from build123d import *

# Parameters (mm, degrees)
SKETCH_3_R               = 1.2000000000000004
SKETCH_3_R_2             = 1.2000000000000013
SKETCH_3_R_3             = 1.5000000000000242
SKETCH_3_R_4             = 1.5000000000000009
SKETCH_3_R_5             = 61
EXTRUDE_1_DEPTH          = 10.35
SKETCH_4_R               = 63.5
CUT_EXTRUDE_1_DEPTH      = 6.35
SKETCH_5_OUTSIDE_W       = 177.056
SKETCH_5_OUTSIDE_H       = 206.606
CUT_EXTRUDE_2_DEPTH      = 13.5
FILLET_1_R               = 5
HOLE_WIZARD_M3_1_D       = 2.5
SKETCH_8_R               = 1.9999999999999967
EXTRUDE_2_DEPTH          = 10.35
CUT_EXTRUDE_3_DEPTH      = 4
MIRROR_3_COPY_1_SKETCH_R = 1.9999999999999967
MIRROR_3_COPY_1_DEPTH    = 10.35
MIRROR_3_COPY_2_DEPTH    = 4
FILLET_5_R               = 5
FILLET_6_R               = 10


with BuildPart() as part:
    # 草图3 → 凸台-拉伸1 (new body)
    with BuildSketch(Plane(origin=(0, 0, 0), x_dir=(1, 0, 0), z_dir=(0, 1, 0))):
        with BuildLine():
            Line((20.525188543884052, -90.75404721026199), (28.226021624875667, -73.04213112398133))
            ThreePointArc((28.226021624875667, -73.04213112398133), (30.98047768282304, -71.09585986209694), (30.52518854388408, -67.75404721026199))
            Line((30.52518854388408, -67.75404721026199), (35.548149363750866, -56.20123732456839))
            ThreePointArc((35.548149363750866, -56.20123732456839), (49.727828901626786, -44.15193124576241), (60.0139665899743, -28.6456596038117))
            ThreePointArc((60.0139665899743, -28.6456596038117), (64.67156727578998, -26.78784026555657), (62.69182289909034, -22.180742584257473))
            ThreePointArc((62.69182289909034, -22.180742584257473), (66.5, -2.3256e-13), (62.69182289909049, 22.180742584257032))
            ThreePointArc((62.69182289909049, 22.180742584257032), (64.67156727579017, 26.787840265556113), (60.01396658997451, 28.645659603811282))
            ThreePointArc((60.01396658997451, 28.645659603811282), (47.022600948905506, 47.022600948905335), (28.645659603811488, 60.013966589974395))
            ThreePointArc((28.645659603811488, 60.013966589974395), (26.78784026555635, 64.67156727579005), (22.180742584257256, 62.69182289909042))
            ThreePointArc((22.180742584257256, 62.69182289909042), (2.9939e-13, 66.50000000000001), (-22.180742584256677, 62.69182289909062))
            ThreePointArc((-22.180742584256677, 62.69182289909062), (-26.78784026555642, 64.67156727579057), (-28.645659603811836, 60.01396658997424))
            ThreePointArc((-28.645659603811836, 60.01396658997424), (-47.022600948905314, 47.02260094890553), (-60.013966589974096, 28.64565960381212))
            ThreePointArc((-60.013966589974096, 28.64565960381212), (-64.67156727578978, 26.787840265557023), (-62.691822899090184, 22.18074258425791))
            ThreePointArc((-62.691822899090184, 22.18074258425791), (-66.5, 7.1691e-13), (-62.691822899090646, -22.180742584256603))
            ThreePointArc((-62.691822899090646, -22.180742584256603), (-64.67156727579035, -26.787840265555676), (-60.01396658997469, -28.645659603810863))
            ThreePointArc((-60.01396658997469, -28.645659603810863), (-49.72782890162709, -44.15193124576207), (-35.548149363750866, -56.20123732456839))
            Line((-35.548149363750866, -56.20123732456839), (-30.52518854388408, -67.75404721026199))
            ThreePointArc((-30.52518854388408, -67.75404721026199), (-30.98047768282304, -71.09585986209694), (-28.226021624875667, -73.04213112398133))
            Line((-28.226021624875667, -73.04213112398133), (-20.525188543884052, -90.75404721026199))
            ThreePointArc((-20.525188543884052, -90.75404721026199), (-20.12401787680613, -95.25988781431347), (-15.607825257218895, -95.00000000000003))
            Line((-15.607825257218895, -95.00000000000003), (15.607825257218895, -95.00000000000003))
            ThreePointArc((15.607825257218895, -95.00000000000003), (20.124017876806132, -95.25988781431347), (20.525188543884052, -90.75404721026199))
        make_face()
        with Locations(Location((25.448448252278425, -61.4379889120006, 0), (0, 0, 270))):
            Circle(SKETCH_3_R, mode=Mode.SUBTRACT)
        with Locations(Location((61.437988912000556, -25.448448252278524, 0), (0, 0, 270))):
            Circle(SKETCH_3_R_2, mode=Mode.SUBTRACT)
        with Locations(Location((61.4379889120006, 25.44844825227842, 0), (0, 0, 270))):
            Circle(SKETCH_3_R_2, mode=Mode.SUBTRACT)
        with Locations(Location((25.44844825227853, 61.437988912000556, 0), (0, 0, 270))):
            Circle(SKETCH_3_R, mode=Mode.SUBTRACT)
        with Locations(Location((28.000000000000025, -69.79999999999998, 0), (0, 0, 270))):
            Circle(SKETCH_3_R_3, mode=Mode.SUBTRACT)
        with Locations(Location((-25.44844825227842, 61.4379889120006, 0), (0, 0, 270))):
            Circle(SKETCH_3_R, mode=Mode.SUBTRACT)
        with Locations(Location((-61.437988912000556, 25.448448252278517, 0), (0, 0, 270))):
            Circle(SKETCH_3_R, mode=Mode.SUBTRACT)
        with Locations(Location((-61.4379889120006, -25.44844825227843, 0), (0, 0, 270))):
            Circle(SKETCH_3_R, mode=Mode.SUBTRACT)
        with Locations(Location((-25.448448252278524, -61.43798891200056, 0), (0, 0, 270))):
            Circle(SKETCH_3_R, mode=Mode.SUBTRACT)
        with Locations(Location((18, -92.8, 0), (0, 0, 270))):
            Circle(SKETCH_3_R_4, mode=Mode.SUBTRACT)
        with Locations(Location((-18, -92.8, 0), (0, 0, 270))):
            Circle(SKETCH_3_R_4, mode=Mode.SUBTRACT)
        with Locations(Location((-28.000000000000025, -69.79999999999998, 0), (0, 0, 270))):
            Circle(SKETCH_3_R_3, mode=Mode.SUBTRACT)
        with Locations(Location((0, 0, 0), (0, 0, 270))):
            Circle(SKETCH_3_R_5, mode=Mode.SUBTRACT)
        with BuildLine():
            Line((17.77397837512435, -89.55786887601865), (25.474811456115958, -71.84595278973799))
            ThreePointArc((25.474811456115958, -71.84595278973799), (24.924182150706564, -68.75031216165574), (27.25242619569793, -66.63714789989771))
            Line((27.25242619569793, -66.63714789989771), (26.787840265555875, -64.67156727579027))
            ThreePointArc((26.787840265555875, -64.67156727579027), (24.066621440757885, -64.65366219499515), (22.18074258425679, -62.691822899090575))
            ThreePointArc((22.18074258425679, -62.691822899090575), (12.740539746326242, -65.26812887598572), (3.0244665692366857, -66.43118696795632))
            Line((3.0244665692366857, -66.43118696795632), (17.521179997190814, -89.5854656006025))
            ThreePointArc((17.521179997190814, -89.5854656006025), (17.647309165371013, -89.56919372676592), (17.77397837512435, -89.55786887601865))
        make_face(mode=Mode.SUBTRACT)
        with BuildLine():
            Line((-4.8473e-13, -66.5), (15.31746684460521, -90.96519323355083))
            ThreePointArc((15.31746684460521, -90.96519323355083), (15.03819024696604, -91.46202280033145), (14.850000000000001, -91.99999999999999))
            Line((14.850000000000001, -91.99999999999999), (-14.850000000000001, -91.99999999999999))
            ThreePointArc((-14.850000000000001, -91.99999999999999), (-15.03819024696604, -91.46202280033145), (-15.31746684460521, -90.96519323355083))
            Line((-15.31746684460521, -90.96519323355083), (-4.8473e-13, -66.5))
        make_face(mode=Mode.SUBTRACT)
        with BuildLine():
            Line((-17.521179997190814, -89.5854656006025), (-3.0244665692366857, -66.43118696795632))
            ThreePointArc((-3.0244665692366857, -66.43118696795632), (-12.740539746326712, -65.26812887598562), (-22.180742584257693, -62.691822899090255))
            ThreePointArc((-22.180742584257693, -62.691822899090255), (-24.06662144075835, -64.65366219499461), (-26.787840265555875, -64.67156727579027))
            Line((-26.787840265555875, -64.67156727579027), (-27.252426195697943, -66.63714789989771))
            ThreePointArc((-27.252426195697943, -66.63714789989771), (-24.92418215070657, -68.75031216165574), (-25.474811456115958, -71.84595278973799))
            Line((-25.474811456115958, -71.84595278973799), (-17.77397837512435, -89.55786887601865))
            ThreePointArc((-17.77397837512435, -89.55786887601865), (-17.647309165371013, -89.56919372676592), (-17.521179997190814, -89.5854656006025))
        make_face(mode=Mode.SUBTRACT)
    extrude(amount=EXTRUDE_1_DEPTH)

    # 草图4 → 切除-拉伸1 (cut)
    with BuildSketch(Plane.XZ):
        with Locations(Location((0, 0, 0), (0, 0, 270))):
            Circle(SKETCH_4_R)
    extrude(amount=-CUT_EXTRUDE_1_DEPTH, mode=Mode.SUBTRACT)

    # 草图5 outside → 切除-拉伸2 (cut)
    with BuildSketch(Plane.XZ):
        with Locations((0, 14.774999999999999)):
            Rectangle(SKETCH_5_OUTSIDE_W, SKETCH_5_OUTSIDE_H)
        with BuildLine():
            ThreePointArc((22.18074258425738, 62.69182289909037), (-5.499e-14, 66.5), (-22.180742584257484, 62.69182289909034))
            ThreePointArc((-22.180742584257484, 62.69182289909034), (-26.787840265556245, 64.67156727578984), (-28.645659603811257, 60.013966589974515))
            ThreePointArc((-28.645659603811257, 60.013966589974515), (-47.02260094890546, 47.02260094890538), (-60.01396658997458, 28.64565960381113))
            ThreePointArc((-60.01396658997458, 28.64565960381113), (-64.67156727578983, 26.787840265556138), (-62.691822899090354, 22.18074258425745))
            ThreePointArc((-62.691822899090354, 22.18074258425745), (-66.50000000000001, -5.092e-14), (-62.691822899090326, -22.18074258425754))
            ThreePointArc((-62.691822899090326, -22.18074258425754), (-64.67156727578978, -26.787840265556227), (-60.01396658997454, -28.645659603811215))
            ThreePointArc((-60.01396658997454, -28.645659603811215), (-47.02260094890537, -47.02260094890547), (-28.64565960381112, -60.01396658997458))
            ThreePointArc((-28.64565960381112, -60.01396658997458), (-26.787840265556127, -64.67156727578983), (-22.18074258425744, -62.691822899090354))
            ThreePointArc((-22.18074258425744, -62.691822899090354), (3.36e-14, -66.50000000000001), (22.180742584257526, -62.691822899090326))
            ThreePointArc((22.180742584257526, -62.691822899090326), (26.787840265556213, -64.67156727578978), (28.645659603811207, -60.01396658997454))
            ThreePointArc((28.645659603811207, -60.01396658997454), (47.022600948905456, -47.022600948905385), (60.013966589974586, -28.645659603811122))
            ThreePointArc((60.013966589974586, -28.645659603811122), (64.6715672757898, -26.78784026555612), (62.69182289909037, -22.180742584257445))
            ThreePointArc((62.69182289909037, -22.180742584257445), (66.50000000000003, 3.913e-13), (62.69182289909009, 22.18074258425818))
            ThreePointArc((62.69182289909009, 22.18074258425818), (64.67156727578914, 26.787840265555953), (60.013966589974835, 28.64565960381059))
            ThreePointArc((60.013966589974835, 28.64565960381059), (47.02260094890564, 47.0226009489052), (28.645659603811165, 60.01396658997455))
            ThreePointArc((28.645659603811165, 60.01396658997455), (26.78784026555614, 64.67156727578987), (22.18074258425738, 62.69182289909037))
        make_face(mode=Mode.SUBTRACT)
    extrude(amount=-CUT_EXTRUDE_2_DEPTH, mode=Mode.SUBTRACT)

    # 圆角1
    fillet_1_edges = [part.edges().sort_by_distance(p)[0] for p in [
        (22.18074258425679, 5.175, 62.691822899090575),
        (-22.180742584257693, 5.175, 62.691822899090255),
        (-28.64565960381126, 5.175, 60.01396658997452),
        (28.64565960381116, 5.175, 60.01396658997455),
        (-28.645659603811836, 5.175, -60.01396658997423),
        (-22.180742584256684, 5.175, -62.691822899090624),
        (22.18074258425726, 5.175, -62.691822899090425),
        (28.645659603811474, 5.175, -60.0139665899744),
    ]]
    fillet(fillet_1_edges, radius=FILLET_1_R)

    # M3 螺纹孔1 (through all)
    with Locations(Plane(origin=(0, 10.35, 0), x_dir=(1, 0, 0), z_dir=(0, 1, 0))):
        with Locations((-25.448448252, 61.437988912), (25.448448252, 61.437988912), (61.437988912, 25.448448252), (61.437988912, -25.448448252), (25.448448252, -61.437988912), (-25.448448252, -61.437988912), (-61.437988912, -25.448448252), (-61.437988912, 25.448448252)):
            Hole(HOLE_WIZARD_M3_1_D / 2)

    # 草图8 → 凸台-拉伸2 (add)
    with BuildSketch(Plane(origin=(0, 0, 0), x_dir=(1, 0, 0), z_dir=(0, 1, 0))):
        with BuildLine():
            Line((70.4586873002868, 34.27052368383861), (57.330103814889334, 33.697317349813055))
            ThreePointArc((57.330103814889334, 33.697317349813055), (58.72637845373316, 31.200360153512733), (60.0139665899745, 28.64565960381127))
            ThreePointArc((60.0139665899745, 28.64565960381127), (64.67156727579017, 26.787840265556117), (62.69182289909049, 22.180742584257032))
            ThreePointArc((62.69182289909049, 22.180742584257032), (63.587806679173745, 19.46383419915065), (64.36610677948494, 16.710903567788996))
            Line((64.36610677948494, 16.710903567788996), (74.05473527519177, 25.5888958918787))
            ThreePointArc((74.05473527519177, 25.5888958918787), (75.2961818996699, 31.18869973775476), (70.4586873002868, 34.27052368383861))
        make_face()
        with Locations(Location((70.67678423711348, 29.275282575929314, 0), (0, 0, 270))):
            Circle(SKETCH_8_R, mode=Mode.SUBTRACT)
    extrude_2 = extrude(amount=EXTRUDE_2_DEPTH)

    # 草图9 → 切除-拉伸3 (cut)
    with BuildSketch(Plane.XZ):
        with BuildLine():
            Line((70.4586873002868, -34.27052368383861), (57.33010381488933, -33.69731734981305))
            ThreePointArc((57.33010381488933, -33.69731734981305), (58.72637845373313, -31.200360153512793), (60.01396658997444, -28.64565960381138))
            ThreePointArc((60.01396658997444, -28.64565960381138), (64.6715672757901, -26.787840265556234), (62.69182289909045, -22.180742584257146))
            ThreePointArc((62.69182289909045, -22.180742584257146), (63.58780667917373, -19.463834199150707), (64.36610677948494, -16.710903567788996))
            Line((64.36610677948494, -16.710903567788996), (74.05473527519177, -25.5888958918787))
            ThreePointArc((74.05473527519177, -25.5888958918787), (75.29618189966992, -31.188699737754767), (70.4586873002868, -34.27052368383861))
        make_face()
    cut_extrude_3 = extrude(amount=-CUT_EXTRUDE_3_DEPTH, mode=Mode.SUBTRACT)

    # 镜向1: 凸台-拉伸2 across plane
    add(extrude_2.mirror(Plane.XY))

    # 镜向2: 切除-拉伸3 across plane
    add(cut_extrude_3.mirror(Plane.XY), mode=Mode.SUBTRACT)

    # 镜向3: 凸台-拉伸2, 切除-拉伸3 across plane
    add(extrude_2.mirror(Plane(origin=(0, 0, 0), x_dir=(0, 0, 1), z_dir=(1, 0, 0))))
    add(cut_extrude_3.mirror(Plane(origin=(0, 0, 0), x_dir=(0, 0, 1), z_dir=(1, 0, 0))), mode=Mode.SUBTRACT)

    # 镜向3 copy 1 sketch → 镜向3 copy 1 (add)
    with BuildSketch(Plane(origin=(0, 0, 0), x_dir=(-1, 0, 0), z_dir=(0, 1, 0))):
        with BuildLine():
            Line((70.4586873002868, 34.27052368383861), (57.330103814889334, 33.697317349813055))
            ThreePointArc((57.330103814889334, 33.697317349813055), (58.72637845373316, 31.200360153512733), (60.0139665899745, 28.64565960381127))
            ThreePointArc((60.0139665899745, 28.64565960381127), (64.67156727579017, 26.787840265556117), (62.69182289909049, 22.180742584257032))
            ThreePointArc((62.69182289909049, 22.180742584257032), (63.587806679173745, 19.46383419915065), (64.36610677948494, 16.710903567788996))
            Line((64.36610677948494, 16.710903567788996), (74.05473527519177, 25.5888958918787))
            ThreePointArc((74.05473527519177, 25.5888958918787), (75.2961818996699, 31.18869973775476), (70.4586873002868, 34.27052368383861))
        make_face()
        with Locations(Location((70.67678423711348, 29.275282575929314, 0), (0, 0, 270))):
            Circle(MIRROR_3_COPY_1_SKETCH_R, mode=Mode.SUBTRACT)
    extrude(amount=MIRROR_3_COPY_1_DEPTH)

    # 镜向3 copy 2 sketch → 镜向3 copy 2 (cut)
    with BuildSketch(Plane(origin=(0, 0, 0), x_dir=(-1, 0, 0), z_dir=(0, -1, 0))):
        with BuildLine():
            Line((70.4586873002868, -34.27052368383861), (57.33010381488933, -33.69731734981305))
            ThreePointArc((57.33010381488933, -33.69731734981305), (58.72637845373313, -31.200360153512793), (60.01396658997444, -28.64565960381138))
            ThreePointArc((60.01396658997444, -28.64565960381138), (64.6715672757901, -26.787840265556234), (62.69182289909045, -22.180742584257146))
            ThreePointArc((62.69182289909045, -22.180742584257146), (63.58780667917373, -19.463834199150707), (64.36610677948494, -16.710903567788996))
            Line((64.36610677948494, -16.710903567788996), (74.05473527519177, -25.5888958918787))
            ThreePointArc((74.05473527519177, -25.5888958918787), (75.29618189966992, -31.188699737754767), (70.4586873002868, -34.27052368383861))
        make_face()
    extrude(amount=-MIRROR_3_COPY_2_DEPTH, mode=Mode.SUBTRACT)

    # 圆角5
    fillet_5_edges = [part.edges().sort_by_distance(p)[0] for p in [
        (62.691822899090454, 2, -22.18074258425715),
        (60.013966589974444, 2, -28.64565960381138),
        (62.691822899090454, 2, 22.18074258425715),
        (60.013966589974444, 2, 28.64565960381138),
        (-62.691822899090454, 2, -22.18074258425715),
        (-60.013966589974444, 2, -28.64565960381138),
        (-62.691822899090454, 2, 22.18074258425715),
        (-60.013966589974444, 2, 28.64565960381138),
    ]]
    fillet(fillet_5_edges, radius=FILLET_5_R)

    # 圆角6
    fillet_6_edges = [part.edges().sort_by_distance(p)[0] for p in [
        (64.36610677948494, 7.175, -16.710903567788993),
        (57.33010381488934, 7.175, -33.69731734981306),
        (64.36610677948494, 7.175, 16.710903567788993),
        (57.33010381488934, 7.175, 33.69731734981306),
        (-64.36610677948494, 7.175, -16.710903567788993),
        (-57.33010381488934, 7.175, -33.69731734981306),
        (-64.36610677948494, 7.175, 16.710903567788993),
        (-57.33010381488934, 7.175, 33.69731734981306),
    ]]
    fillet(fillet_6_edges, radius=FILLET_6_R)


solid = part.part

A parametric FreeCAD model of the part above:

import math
import FreeCAD as App
import Part
import Sketcher
Q = App.Units.Quantity


def edges_at(feature, points):
    """Names of the edges that pass closest to the given points."""
    edges = feature.Shape.Edges
    near = lambda p: min(range(len(edges)), key=lambda i: edges[i].distToShape(Part.Vertex(*p))[0])
    return sorted({f"Edge{near(p) + 1}" for p in points})

doc = App.newDocument("Part")
body = doc.addObject("PartDesign::Body", "Body")

# Sketch on XZ plane
sketch1 = body.newObject("Sketcher::SketchObject", "Sketch")
sketch1.AttachmentSupport = (doc.getObject("XZ_Plane"), [""])
sketch1.MapMode = "FlatFace"
sketch1.addGeometry(Part.LineSegment(App.Vector(20.525189, 90.754047, 0), App.Vector(28.226022, 73.042131, 0)), False)
sketch1.addGeometry(Part.ArcOfCircle(Part.Circle(App.Vector(28, 69.8, 0), App.Vector(0, 0, 1), 3.25), math.radians(-39.015008), math.radians(86.012139)), False)
sketch1.addGeometry(Part.LineSegment(App.Vector(30.525189, 67.754047, 0), App.Vector(35.548149, 56.201237, 0)), False)
sketch1.addGeometry(Part.ArcOfCircle(Part.Circle(App.Vector(0, 0, 0), App.Vector(0, 0, 1), 66.5), math.radians(25.515916), math.radians(57.686016)), False)
sketch1.addGeometry(Part.ArcOfCircle(Part.Circle(App.Vector(61.437989, 25.448448, 0), App.Vector(0, 0, 1), 3.5), math.radians(-69.007958), math.radians(114.007958)), False)
sketch1.addGeometry(Part.ArcOfCircle(Part.Circle(App.Vector(0, 0, 0), App.Vector(0, 0, 1), 66.5), math.radians(-19.484084), math.radians(19.484084)), False)
sketch1.addGeometry(Part.ArcOfCircle(Part.Circle(App.Vector(61.437989, -25.448448, 0), App.Vector(0, 0, 1), 3.5), math.radians(-114.007958), math.radians(69.007958)), False)
sketch1.addGeometry(Part.ArcOfCircle(Part.Circle(App.Vector(0, 0, 0), App.Vector(0, 0, 1), 66.5), math.radians(-64.484084), math.radians(-25.515916)), False)
sketch1.addGeometry(Part.ArcOfCircle(Part.Circle(App.Vector(25.448448, -61.437989, 0), App.Vector(0, 0, 1), 3.5), math.radians(-159.007958), math.radians(24.007958)), False)
sketch1.addGeometry(Part.ArcOfCircle(Part.Circle(App.Vector(0, 0, 0), App.Vector(0, 0, 1), 66.5), math.radians(-109.484084), math.radians(-70.515916)), False)
sketch1.addGeometry(Part.ArcOfCircle(Part.Circle(App.Vector(-25.448448, -61.437989, 0), App.Vector(0, 0, 1), 3.5), math.radians(155.992042), math.radians(339.007958)), False)
sketch1.addGeometry(Part.ArcOfCircle(Part.Circle(App.Vector(0, 0, 0), App.Vector(0, 0, 1), 66.5), math.radians(-154.484084), math.radians(-115.515916)), False)
sketch1.addGeometry(Part.ArcOfCircle(Part.Circle(App.Vector(-61.437989, -25.448448, 0), App.Vector(0, 0, 1), 3.5), math.radians(110.992042), math.radians(294.007958)), False)
sketch1.addGeometry(Part.ArcOfCircle(Part.Circle(App.Vector(0, 0, 0), App.Vector(0, 0, 1), 66.5), math.radians(160.515916), math.radians(199.484084)), False)
sketch1.addGeometry(Part.ArcOfCircle(Part.Circle(App.Vector(-61.437989, 25.448448, 0), App.Vector(0, 0, 1), 3.5), math.radians(65.992042), math.radians(249.007958)), False)
sketch1.addGeometry(Part.ArcOfCircle(Part.Circle(App.Vector(0, 0, 0), App.Vector(0, 0, 1), 66.5), math.radians(122.313984), math.radians(154.484084)), False)
sketch1.addGeometry(Part.LineSegment(App.Vector(-35.548149, 56.201237, 0), App.Vector(-30.525189, 67.754047, 0)), False)
sketch1.addGeometry(Part.ArcOfCircle(Part.Circle(App.Vector(-28, 69.8, 0), App.Vector(0, 0, 1), 3.25), math.radians(93.987861), math.radians(219.015008)), False)
sketch1.addGeometry(Part.LineSegment(App.Vector(-28.226022, 73.042131, 0), App.Vector(-20.525189, 90.754047, 0)), False)
sketch1.addGeometry(Part.ArcOfCircle(Part.Circle(App.Vector(-18, 92.8, 0), App.Vector(0, 0, 1), 3.25), math.radians(42.603667), math.radians(219.015008)), False)
sketch1.addGeometry(Part.LineSegment(App.Vector(-15.607825, 95, 0), App.Vector(15.607825, 95, 0)), False)
sketch1.addGeometry(Part.ArcOfCircle(Part.Circle(App.Vector(18, 92.8, 0), App.Vector(0, 0, 1), 3.25), math.radians(-39.015008), math.radians(137.396333)), False)
sketch1.addGeometry(Part.Circle(App.Vector(-18, 92.8, 0), App.Vector(0, 0, 1), 1.5), False)
sketch1.addGeometry(Part.LineSegment(App.Vector(-3.024467, 66.431187, 0), App.Vector(-17.52118, 89.585466, 0)), False)
sketch1.addGeometry(Part.ArcOfCircle(Part.Circle(App.Vector(-18, 92.8, 0), App.Vector(0, 0, 1), 3.25), math.radians(-86.012139), math.radians(-81.527817)), False)
sketch1.addGeometry(Part.LineSegment(App.Vector(-17.773978, 89.557869, 0), App.Vector(-25.474811, 71.845953, 0)), False)
sketch1.addGeometry(Part.ArcOfCircle(Part.Circle(App.Vector(-28, 69.8, 0), App.Vector(0, 0, 1), 3.25), math.radians(-76.701591), math.radians(39.015008)), False)
sketch1.addGeometry(Part.LineSegment(App.Vector(-27.252426, 66.637148, 0), App.Vector(-26.78784, 64.671567, 0)), False)
sketch1.addGeometry(Part.ArcOfCircle(Part.Circle(App.Vector(-25.448448, 61.437989, 0), App.Vector(0, 0, 1), 3.5), math.radians(20.992042), math.radians(112.5)), False)
sketch1.addGeometry(Part.ArcOfCircle(Part.Circle(App.Vector(0, 0, 0), App.Vector(0, 0, 1), 66.5), math.radians(92.606751), math.radians(109.484084)), False)
sketch1.addGeometry(Part.LineSegment(App.Vector(-15.317467, 90.965193, 0), App.Vector(0, 66.5, 0)), False)
sketch1.addGeometry(Part.LineSegment(App.Vector(0, 66.5, 0), App.Vector(15.317467, 90.965193, 0)), False)
sketch1.addGeometry(Part.ArcOfCircle(Part.Circle(App.Vector(18, 92.8, 0), App.Vector(0, 0, 1), 3.25), math.radians(-165.749967), math.radians(-145.62854)), False)
sketch1.addGeometry(Part.LineSegment(App.Vector(14.85, 92, 0), App.Vector(-14.85, 92, 0)), False)
sketch1.addGeometry(Part.ArcOfCircle(Part.Circle(App.Vector(-18, 92.8, 0), App.Vector(0, 0, 1), 3.25), math.radians(-34.37146), math.radians(-14.250033)), False)
sketch1.addGeometry(Part.Circle(App.Vector(-28, 69.8, 0), App.Vector(0, 0, 1), 1.5), False)
sketch1.addGeometry(Part.Circle(App.Vector(-25.448448, 61.437989, 0), App.Vector(0, 0, 1), 1.2), False)
sketch1.addGeometry(Part.Circle(App.Vector(-61.437989, 25.448448, 0), App.Vector(0, 0, 1), 1.2), False)
sketch1.addGeometry(Part.LineSegment(App.Vector(25.474811, 71.845953, 0), App.Vector(17.773978, 89.557869, 0)), False)
sketch1.addGeometry(Part.ArcOfCircle(Part.Circle(App.Vector(18, 92.8, 0), App.Vector(0, 0, 1), 3.25), math.radians(-98.472183), math.radians(-93.987861)), False)
sketch1.addGeometry(Part.LineSegment(App.Vector(17.52118, 89.585466, 0), App.Vector(3.024467, 66.431187, 0)), False)
sketch1.addGeometry(Part.ArcOfCircle(Part.Circle(App.Vector(0, 0, 0), App.Vector(0, 0, 1), 66.5), math.radians(70.515916), math.radians(87.393249)), False)
sketch1.addGeometry(Part.ArcOfCircle(Part.Circle(App.Vector(25.448448, 61.437989, 0), App.Vector(0, 0, 1), 3.5), math.radians(67.5), math.radians(159.007958)), False)
sketch1.addGeometry(Part.LineSegment(App.Vector(26.78784, 64.671567, 0), App.Vector(27.252426, 66.637148, 0)), False)
sketch1.addGeometry(Part.ArcOfCircle(Part.Circle(App.Vector(28, 69.8, 0), App.Vector(0, 0, 1), 3.25), math.radians(140.984992), math.radians(256.701591)), False)
sketch1.addGeometry(Part.Circle(App.Vector(18, 92.8, 0), App.Vector(0, 0, 1), 1.5), False)
sketch1.addGeometry(Part.Circle(App.Vector(28, 69.8, 0), App.Vector(0, 0, 1), 1.5), False)
sketch1.addGeometry(Part.Circle(App.Vector(25.448448, 61.437989, 0), App.Vector(0, 0, 1), 1.2), False)
sketch1.addGeometry(Part.Circle(App.Vector(61.437989, 25.448448, 0), App.Vector(0, 0, 1), 1.2), False)
sketch1.addGeometry(Part.Circle(App.Vector(0, 0, 0), App.Vector(0, 0, 1), 61), False)
sketch1.addGeometry(Part.Circle(App.Vector(-61.437989, -25.448448, 0), App.Vector(0, 0, 1), 1.2), False)
sketch1.addGeometry(Part.Circle(App.Vector(-25.448448, -61.437989, 0), App.Vector(0, 0, 1), 1.2), False)
sketch1.addGeometry(Part.Circle(App.Vector(25.448448, -61.437989, 0), App.Vector(0, 0, 1), 1.2), False)
sketch1.addGeometry(Part.Circle(App.Vector(61.437989, -25.448448, 0), App.Vector(0, 0, 1), 1.2), False)
sketch1.addConstraint(Sketcher.Constraint("Coincident", 0, 2, 1, 2))
sketch1.addConstraint(Sketcher.Constraint("Coincident", 1, 1, 2, 1))
sketch1.addConstraint(Sketcher.Constraint("Coincident", 2, 2, 3, 2))
sketch1.addConstraint(Sketcher.Constraint("Coincident", 3, 1, 4, 2))
sketch1.addConstraint(Sketcher.Constraint("Coincident", 4, 1, 5, 2))
sketch1.addConstraint(Sketcher.Constraint("Coincident", 5, 1, 6, 2))
sketch1.addConstraint(Sketcher.Constraint("Coincident", 6, 1, 7, 2))
sketch1.addConstraint(Sketcher.Constraint("Coincident", 7, 1, 8, 2))
sketch1.addConstraint(Sketcher.Constraint("Coincident", 8, 1, 9, 2))
sketch1.addConstraint(Sketcher.Constraint("Coincident", 9, 1, 10, 2))
sketch1.addConstraint(Sketcher.Constraint("Coincident", 10, 1, 11, 2))
sketch1.addConstraint(Sketcher.Constraint("Coincident", 11, 1, 12, 2))
sketch1.addConstraint(Sketcher.Constraint("Coincident", 12, 1, 13, 2))
sketch1.addConstraint(Sketcher.Constraint("Coincident", 13, 1, 14, 2))
sketch1.addConstraint(Sketcher.Constraint("Coincident", 14, 1, 15, 2))
sketch1.addConstraint(Sketcher.Constraint("Coincident", 15, 1, 16, 1))
sketch1.addConstraint(Sketcher.Constraint("Coincident", 16, 2, 17, 2))
sketch1.addConstraint(Sketcher.Constraint("Coincident", 17, 1, 18, 1))
sketch1.addConstraint(Sketcher.Constraint("Coincident", 18, 2, 19, 2))
sketch1.addConstraint(Sketcher.Constraint("Coincident", 19, 1, 20, 1))
sketch1.addConstraint(Sketcher.Constraint("Coincident", 20, 2, 21, 2))
sketch1.addConstraint(Sketcher.Constraint("Coincident", 21, 1, 0, 1))
sketch1.addConstraint(Sketcher.Constraint("Coincident", 23, 2, 24, 2))
sketch1.addConstraint(Sketcher.Constraint("Coincident", 24, 1, 25, 1))
sketch1.addConstraint(Sketcher.Constraint("Coincident", 25, 2, 26, 2))
sketch1.addConstraint(Sketcher.Constraint("Coincident", 26, 1, 27, 1))
sketch1.addConstraint(Sketcher.Constraint("Coincident", 27, 2, 28, 2))
sketch1.addConstraint(Sketcher.Constraint("Coincident", 28, 1, 29, 2))
sketch1.addConstraint(Sketcher.Constraint("Coincident", 29, 1, 23, 1))
sketch1.addConstraint(Sketcher.Constraint("Coincident", 30, 2, 31, 1))
sketch1.addConstraint(Sketcher.Constraint("Coincident", 31, 2, 32, 2))
sketch1.addConstraint(Sketcher.Constraint("Coincident", 32, 1, 33, 1))
sketch1.addConstraint(Sketcher.Constraint("Coincident", 33, 2, 34, 2))
sketch1.addConstraint(Sketcher.Constraint("Coincident", 34, 1, 30, 1))
sketch1.addConstraint(Sketcher.Constraint("Coincident", 38, 2, 39, 2))
sketch1.addConstraint(Sketcher.Constraint("Coincident", 39, 1, 40, 1))
sketch1.addConstraint(Sketcher.Constraint("Coincident", 40, 2, 41, 2))
sketch1.addConstraint(Sketcher.Constraint("Coincident", 41, 1, 42, 2))
sketch1.addConstraint(Sketcher.Constraint("Coincident", 42, 1, 43, 1))
sketch1.addConstraint(Sketcher.Constraint("Coincident", 43, 2, 44, 2))
sketch1.addConstraint(Sketcher.Constraint("Coincident", 44, 1, 38, 1))
sketch1.addConstraint(Sketcher.Constraint("Horizontal", 20))
sketch1.addConstraint(Sketcher.Constraint("Horizontal", 33))
sketch1.addConstraint(Sketcher.Constraint("Coincident", 3, 3, -1, 1))
sketch1.addConstraint(Sketcher.Constraint("Coincident", 5, 3, -1, 1))
sketch1.addConstraint(Sketcher.Constraint("Coincident", 7, 3, -1, 1))
sketch1.addConstraint(Sketcher.Constraint("Coincident", 9, 3, -1, 1))
sketch1.addConstraint(Sketcher.Constraint("Coincident", 11, 3, -1, 1))
sketch1.addConstraint(Sketcher.Constraint("Coincident", 13, 3, -1, 1))
sketch1.addConstraint(Sketcher.Constraint("Coincident", 15, 3, -1, 1))
sketch1.addConstraint(Sketcher.Constraint("Coincident", 29, 3, -1, 1))
sketch1.addConstraint(Sketcher.Constraint("Coincident", 41, 3, -1, 1))
sketch1.addConstraint(Sketcher.Constraint("Coincident", 49, 3, -1, 1))
sketch1.addConstraint(Sketcher.Constraint("Coincident", 22, 3, 19, 3))
sketch1.addConstraint(Sketcher.Constraint("Coincident", 24, 3, 19, 3))
sketch1.addConstraint(Sketcher.Constraint("Coincident", 26, 3, 17, 3))
sketch1.addConstraint(Sketcher.Constraint("Coincident", 32, 3, 21, 3))
sketch1.addConstraint(Sketcher.Constraint("Coincident", 34, 3, 19, 3))
sketch1.addConstraint(Sketcher.Constraint("Coincident", 35, 3, 17, 3))
sketch1.addConstraint(Sketcher.Constraint("Coincident", 36, 3, 28, 3))
sketch1.addConstraint(Sketcher.Constraint("Coincident", 37, 3, 14, 3))
sketch1.addConstraint(Sketcher.Constraint("Coincident", 39, 3, 21, 3))
sketch1.addConstraint(Sketcher.Constraint("Coincident", 44, 3, 1, 3))
sketch1.addConstraint(Sketcher.Constraint("Coincident", 45, 3, 21, 3))
sketch1.addConstraint(Sketcher.Constraint("Coincident", 46, 3, 1, 3))
sketch1.addConstraint(Sketcher.Constraint("Coincident", 47, 3, 42, 3))
sketch1.addConstraint(Sketcher.Constraint("Coincident", 48, 3, 4, 3))
sketch1.addConstraint(Sketcher.Constraint("Coincident", 50, 3, 12, 3))
sketch1.addConstraint(Sketcher.Constraint("Coincident", 51, 3, 10, 3))
sketch1.addConstraint(Sketcher.Constraint("Coincident", 52, 3, 8, 3))
sketch1.addConstraint(Sketcher.Constraint("Coincident", 53, 3, 6, 3))
sketch1.addConstraint(Sketcher.Constraint("Equal", 3, 5))
sketch1.addConstraint(Sketcher.Constraint("Equal", 4, 6))
sketch1.addConstraint(Sketcher.Constraint("Equal", 5, 7))
sketch1.addConstraint(Sketcher.Constraint("Equal", 6, 8))
sketch1.addConstraint(Sketcher.Constraint("Equal", 7, 9))
sketch1.addConstraint(Sketcher.Constraint("Equal", 8, 10))
sketch1.addConstraint(Sketcher.Constraint("Equal", 9, 11))
sketch1.addConstraint(Sketcher.Constraint("Equal", 10, 12))
sketch1.addConstraint(Sketcher.Constraint("Equal", 11, 13))
sketch1.addConstraint(Sketcher.Constraint("Equal", 12, 14))
sketch1.addConstraint(Sketcher.Constraint("Equal", 13, 15))
sketch1.addConstraint(Sketcher.Constraint("Equal", 1, 17))
sketch1.addConstraint(Sketcher.Constraint("Equal", 17, 19))
sketch1.addConstraint(Sketcher.Constraint("Equal", 19, 21))
sketch1.addConstraint(Sketcher.Constraint("Equal", 21, 24))
sketch1.addConstraint(Sketcher.Constraint("Equal", 24, 26))
sketch1.addConstraint(Sketcher.Constraint("Equal", 14, 28))
sketch1.addConstraint(Sketcher.Constraint("Equal", 15, 29))
sketch1.addConstraint(Sketcher.Constraint("Equal", 26, 32))
sketch1.addConstraint(Sketcher.Constraint("Equal", 32, 34))
sketch1.addConstraint(Sketcher.Constraint("Equal", 22, 35))
sketch1.addConstraint(Sketcher.Constraint("Equal", 36, 37))
sketch1.addConstraint(Sketcher.Constraint("Equal", 34, 39))
sketch1.addConstraint(Sketcher.Constraint("Equal", 29, 41))
sketch1.addConstraint(Sketcher.Constraint("Equal", 28, 42))
sketch1.addConstraint(Sketcher.Constraint("Equal", 39, 44))
sketch1.addConstraint(Sketcher.Constraint("Equal", 35, 45))
sketch1.addConstraint(Sketcher.Constraint("Equal", 45, 46))
sketch1.addConstraint(Sketcher.Constraint("Equal", 37, 47))
sketch1.addConstraint(Sketcher.Constraint("Equal", 47, 48))
sketch1.addConstraint(Sketcher.Constraint("Equal", 48, 50))
sketch1.addConstraint(Sketcher.Constraint("Equal", 50, 51))
sketch1.addConstraint(Sketcher.Constraint("Equal", 51, 52))
sketch1.addConstraint(Sketcher.Constraint("Equal", 52, 53))
sketch1.addConstraint(Sketcher.Constraint("Symmetric", 4, 3, 12, 3, -1, 1))
sketch1.addConstraint(Sketcher.Constraint("Symmetric", 6, 3, 14, 3, -1, 1))
sketch1.addConstraint(Sketcher.Constraint("Symmetric", 8, 3, 28, 3, -1, 1))
sketch1.addConstraint(Sketcher.Constraint("Symmetric", 10, 3, 42, 3, -1, 1))
sketch1.addConstraint(Sketcher.Constraint("Symmetric", 8, 3, 10, 3, -2))
sketch1.addConstraint(Sketcher.Constraint("Symmetric", 6, 3, 12, 3, -2))
sketch1.addConstraint(Sketcher.Constraint("Symmetric", 1, 3, 17, 3, -2))
sketch1.addConstraint(Sketcher.Constraint("Symmetric", 19, 3, 21, 3, -2))
sketch1.addConstraint(Sketcher.Constraint("PointOnObject", 30, 2, -2))
sketch1.addConstraint(Sketcher.Constraint("Parallel", 0, 2))
sketch1.addConstraint(Sketcher.Constraint("Parallel", 16, 18))
sketch1.addConstraint(Sketcher.Constraint("Parallel", 18, 25))
sketch1.addConstraint(Sketcher.Constraint("Parallel", 23, 30))
sketch1.addConstraint(Sketcher.Constraint("Parallel", 2, 38))
sketch1.addConstraint(Sketcher.Constraint("Parallel", 31, 40))
sketch1.addConstraint(Sketcher.Constraint("Horizontal", 2, 2, 15, 1))
sketch1.addConstraint(Sketcher.Constraint("Horizontal", 1, 1, 16, 2))
sketch1.addConstraint(Sketcher.Constraint("Horizontal", 0, 2, 17, 1))
sketch1.addConstraint(Sketcher.Constraint("Horizontal", 31, 2, 34, 1))
sketch1.addConstraint(Sketcher.Constraint("Horizontal", 24, 1, 38, 2))
sketch1.addConstraint(Sketcher.Constraint("Horizontal", 23, 2, 39, 1))
sketch1.addConstraint(Sketcher.Constraint("Horizontal", 27, 2, 42, 1))
sketch1.addConstraint(Sketcher.Constraint("Horizontal", 26, 1, 43, 2))
sketch1.addConstraint(Sketcher.Constraint("Equal", 18, 25))
sketch1.addConstraint(Sketcher.Constraint("Diameter", 22, 3.0))
sketch1.addConstraint(Sketcher.Constraint("Diameter", 49, 122.0))
sketch1.addConstraint(Sketcher.Constraint("Diameter", 36, 2.4))
sketch1.addConstraint(Sketcher.Constraint("Radius", 3, 66.5))
sketch1.addConstraint(Sketcher.Constraint("Radius", 4, 3.5))
sketch1.addConstraint(Sketcher.Constraint("Radius", 1, 3.25))
sketch1.addConstraint(Sketcher.Constraint("DistanceX", 33, 2, 33, 1, 29.7))
sketch1.addConstraint(Sketcher.Constraint("DistanceX", -1, 1, 1, 3, 28.0))
sketch1.addConstraint(Sketcher.Constraint("DistanceX", 19, 3, -1, 1, 18.0))
sketch1.addConstraint(Sketcher.Constraint("DistanceY", -1, 1, 19, 1, 95.0))
sketch1.addConstraint(Sketcher.Constraint("DistanceY", -1, 1, 32, 1, 92.0))
sketch1.addConstraint(Sketcher.Constraint("DistanceY", -1, 1, 1, 3, 69.8))
sketch1.addConstraint(Sketcher.Constraint("DistanceY", -1, 1, 30, 2, 66.5))
sketch1.addConstraint(Sketcher.Constraint("Distance", 0, 19.313591))
sketch1.addConstraint(Sketcher.Constraint("Distance", 2, 12.597522))
sketch1.addConstraint(Sketcher.Constraint("Distance", 23, 27.31804))
sketch1.addConstraint(Sketcher.Constraint("Distance", 27, 2.019739))
sketch1.addConstraint(Sketcher.Constraint("DistanceX", -1, 1, 4, 3, 61.437989))
sketch1.addConstraint(Sketcher.Constraint("DistanceY", -1, 1, 4, 3, 25.448448))
sketch1.addConstraint(Sketcher.Constraint("DistanceX", -1, 1, 8, 3, 25.448448))
sketch1.addConstraint(Sketcher.Constraint("DistanceY", 8, 3, -1, 1, 61.437989))
sketch1.addConstraint(Sketcher.Constraint("DistanceX", -1, 1, 0, 2, 28.226022))
sketch1.addConstraint(Sketcher.Constraint("DistanceX", 23, 2, -1, 1, 17.52118))
sketch1.addConstraint(Sketcher.Constraint("DistanceX", 26, 1, -1, 1, 27.252426))
pad1 = body.newObject("PartDesign::Pad", "Pad")
pad1.Profile = sketch1
pad1.Length = 10.35
pad1.Reversed = True

# Sketch on XZ plane
sketch2 = body.newObject("Sketcher::SketchObject", "Sketch001")
sketch2.AttachmentSupport = (doc.getObject("XZ_Plane"), [""])
sketch2.MapMode = "FlatFace"
sketch2.addGeometry(Part.Circle(App.Vector(0, 0, 0), App.Vector(0, 0, 1), 63.5), False)
sketch2.addConstraint(Sketcher.Constraint("Coincident", 0, 3, -1, 1))
sketch2.addConstraint(Sketcher.Constraint("Diameter", 0, 127.0))
pocket1 = body.newObject("PartDesign::Pocket", "Pocket")
pocket1.Profile = sketch2
pocket1.Length = 6.35

# Sketch on XZ plane
sketch3 = body.newObject("Sketcher::SketchObject", "Sketch002")
sketch3.AttachmentSupport = (doc.getObject("XZ_Plane"), [""])
sketch3.MapMode = "FlatFace"
sketch3.addGeometry(Part.LineSegment(App.Vector(-88.528, 118.078, 0), App.Vector(-88.528, -88.528, 0)), False)
sketch3.addGeometry(Part.LineSegment(App.Vector(-88.528, -88.528, 0), App.Vector(88.528, -88.528, 0)), False)
sketch3.addGeometry(Part.LineSegment(App.Vector(88.528, -88.528, 0), App.Vector(88.528, 118.078, 0)), False)
sketch3.addGeometry(Part.LineSegment(App.Vector(88.528, 118.078, 0), App.Vector(-88.528, 118.078, 0)), False)
sketch3.addGeometry(Part.ArcOfCircle(Part.Circle(App.Vector(0, 0, 0), App.Vector(0, 0, 1), 66.5), math.radians(70.515916), math.radians(109.484084)), False)
sketch3.addGeometry(Part.ArcOfCircle(Part.Circle(App.Vector(25.448448, 61.437989, 0), App.Vector(0, 0, 1), 3.5), math.radians(-24.007958), math.radians(159.007958)), False)
sketch3.addGeometry(Part.ArcOfCircle(Part.Circle(App.Vector(0, 0, 0), App.Vector(0, 0, 1), 66.5), math.radians(25.515916), math.radians(64.484084)), False)
sketch3.addGeometry(Part.ArcOfCircle(Part.Circle(App.Vector(61.437989, 25.448448, 0), App.Vector(0, 0, 1), 3.5), math.radians(-69.007958), math.radians(114.007958)), False)
sketch3.addGeometry(Part.ArcOfCircle(Part.Circle(App.Vector(0, 0, 0), App.Vector(0, 0, 1), 66.5), math.radians(-19.484084), math.radians(19.484084)), False)
sketch3.addGeometry(Part.ArcOfCircle(Part.Circle(App.Vector(61.437989, -25.448448, 0), App.Vector(0, 0, 1), 3.5), math.radians(-114.007958), math.radians(69.007958)), False)
sketch3.addGeometry(Part.ArcOfCircle(Part.Circle(App.Vector(0, 0, 0), App.Vector(0, 0, 1), 66.5), math.radians(-64.484084), math.radians(-25.515916)), False)
sketch3.addGeometry(Part.ArcOfCircle(Part.Circle(App.Vector(25.448448, -61.437989, 0), App.Vector(0, 0, 1), 3.5), math.radians(-159.007958), math.radians(24.007958)), False)
sketch3.addGeometry(Part.ArcOfCircle(Part.Circle(App.Vector(0, 0, 0), App.Vector(0, 0, 1), 66.5), math.radians(-109.484084), math.radians(-70.515916)), False)
sketch3.addGeometry(Part.ArcOfCircle(Part.Circle(App.Vector(-25.448448, -61.437989, 0), App.Vector(0, 0, 1), 3.5), math.radians(155.992042), math.radians(339.007958)), False)
sketch3.addGeometry(Part.ArcOfCircle(Part.Circle(App.Vector(0, 0, 0), App.Vector(0, 0, 1), 66.5), math.radians(-154.484084), math.radians(-115.515916)), False)
sketch3.addGeometry(Part.ArcOfCircle(Part.Circle(App.Vector(-61.437989, -25.448448, 0), App.Vector(0, 0, 1), 3.5), math.radians(110.992042), math.radians(294.007958)), False)
sketch3.addGeometry(Part.ArcOfCircle(Part.Circle(App.Vector(0, 0, 0), App.Vector(0, 0, 1), 66.5), math.radians(160.515916), math.radians(199.484084)), False)
sketch3.addGeometry(Part.ArcOfCircle(Part.Circle(App.Vector(-61.437989, 25.448448, 0), App.Vector(0, 0, 1), 3.5), math.radians(65.992042), math.radians(249.007958)), False)
sketch3.addGeometry(Part.ArcOfCircle(Part.Circle(App.Vector(0, 0, 0), App.Vector(0, 0, 1), 66.5), math.radians(115.515916), math.radians(154.484084)), False)
sketch3.addGeometry(Part.ArcOfCircle(Part.Circle(App.Vector(-25.448448, 61.437989, 0), App.Vector(0, 0, 1), 3.5), math.radians(20.992042), math.radians(204.007958)), False)
sketch3.addConstraint(Sketcher.Constraint("Coincident", 0, 2, 1, 1))
sketch3.addConstraint(Sketcher.Constraint("Coincident", 1, 2, 2, 1))
sketch3.addConstraint(Sketcher.Constraint("Coincident", 2, 2, 3, 1))
sketch3.addConstraint(Sketcher.Constraint("Coincident", 3, 2, 0, 1))
sketch3.addConstraint(Sketcher.Constraint("Coincident", 4, 1, 5, 2))
sketch3.addConstraint(Sketcher.Constraint("Coincident", 5, 1, 6, 2))
sketch3.addConstraint(Sketcher.Constraint("Coincident", 6, 1, 7, 2))
sketch3.addConstraint(Sketcher.Constraint("Coincident", 7, 1, 8, 2))
sketch3.addConstraint(Sketcher.Constraint("Coincident", 8, 1, 9, 2))
sketch3.addConstraint(Sketcher.Constraint("Coincident", 9, 1, 10, 2))
sketch3.addConstraint(Sketcher.Constraint("Coincident", 10, 1, 11, 2))
sketch3.addConstraint(Sketcher.Constraint("Coincident", 11, 1, 12, 2))
sketch3.addConstraint(Sketcher.Constraint("Coincident", 12, 1, 13, 2))
sketch3.addConstraint(Sketcher.Constraint("Coincident", 13, 1, 14, 2))
sketch3.addConstraint(Sketcher.Constraint("Coincident", 14, 1, 15, 2))
sketch3.addConstraint(Sketcher.Constraint("Coincident", 15, 1, 16, 2))
sketch3.addConstraint(Sketcher.Constraint("Coincident", 16, 1, 17, 2))
sketch3.addConstraint(Sketcher.Constraint("Coincident", 17, 1, 18, 2))
sketch3.addConstraint(Sketcher.Constraint("Coincident", 18, 1, 19, 2))
sketch3.addConstraint(Sketcher.Constraint("Coincident", 19, 1, 4, 2))
sketch3.addConstraint(Sketcher.Constraint("Vertical", 0))
sketch3.addConstraint(Sketcher.Constraint("Horizontal", 1))
sketch3.addConstraint(Sketcher.Constraint("Vertical", 2))
sketch3.addConstraint(Sketcher.Constraint("Horizontal", 3))
sketch3.addConstraint(Sketcher.Constraint("Coincident", 4, 3, -1, 1))
sketch3.addConstraint(Sketcher.Constraint("Coincident", 6, 3, -1, 1))
sketch3.addConstraint(Sketcher.Constraint("Coincident", 8, 3, -1, 1))
sketch3.addConstraint(Sketcher.Constraint("Coincident", 10, 3, -1, 1))
sketch3.addConstraint(Sketcher.Constraint("Coincident", 12, 3, -1, 1))
sketch3.addConstraint(Sketcher.Constraint("Coincident", 14, 3, -1, 1))
sketch3.addConstraint(Sketcher.Constraint("Coincident", 16, 3, -1, 1))
sketch3.addConstraint(Sketcher.Constraint("Coincident", 18, 3, -1, 1))
sketch3.addConstraint(Sketcher.Constraint("Equal", 4, 6))
sketch3.addConstraint(Sketcher.Constraint("Equal", 5, 7))
sketch3.addConstraint(Sketcher.Constraint("Equal", 6, 8))
sketch3.addConstraint(Sketcher.Constraint("Equal", 7, 9))
sketch3.addConstraint(Sketcher.Constraint("Equal", 8, 10))
sketch3.addConstraint(Sketcher.Constraint("Equal", 9, 11))
sketch3.addConstraint(Sketcher.Constraint("Equal", 10, 12))
sketch3.addConstraint(Sketcher.Constraint("Equal", 11, 13))
sketch3.addConstraint(Sketcher.Constraint("Equal", 12, 14))
sketch3.addConstraint(Sketcher.Constraint("Equal", 13, 15))
sketch3.addConstraint(Sketcher.Constraint("Equal", 14, 16))
sketch3.addConstraint(Sketcher.Constraint("Equal", 15, 17))
sketch3.addConstraint(Sketcher.Constraint("Equal", 16, 18))
sketch3.addConstraint(Sketcher.Constraint("Equal", 17, 19))
sketch3.addConstraint(Sketcher.Constraint("Symmetric", 5, 3, 13, 3, -1, 1))
sketch3.addConstraint(Sketcher.Constraint("Symmetric", 7, 3, 15, 3, -1, 1))
sketch3.addConstraint(Sketcher.Constraint("Symmetric", 9, 3, 17, 3, -1, 1))
sketch3.addConstraint(Sketcher.Constraint("Symmetric", 11, 3, 19, 3, -1, 1))
sketch3.addConstraint(Sketcher.Constraint("Symmetric", 11, 3, 13, 3, -2))
sketch3.addConstraint(Sketcher.Constraint("Symmetric", 9, 3, 15, 3, -2))
sketch3.addConstraint(Sketcher.Constraint("Radius", 4, 66.5))
sketch3.addConstraint(Sketcher.Constraint("Radius", 5, 3.5))
sketch3.addConstraint(Sketcher.Constraint("DistanceX", 1, 1, 1, 2, 177.056))
sketch3.addConstraint(Sketcher.Constraint("DistanceY", 0, 2, 0, 1, 206.606))
sketch3.addConstraint(Sketcher.Constraint("DistanceX", 0, 2, -1, 1, 88.528))
sketch3.addConstraint(Sketcher.Constraint("DistanceY", 0, 2, -1, 1, 88.528))
sketch3.addConstraint(Sketcher.Constraint("DistanceX", -1, 1, 5, 3, 25.448448))
sketch3.addConstraint(Sketcher.Constraint("DistanceY", -1, 1, 5, 3, 61.437989))
sketch3.addConstraint(Sketcher.Constraint("DistanceX", -1, 1, 7, 3, 61.437989))
sketch3.addConstraint(Sketcher.Constraint("DistanceY", -1, 1, 7, 3, 25.448448))
pocket2 = body.newObject("PartDesign::Pocket", "Pocket001")
pocket2.Profile = sketch3
pocket2.Length = 13.5
doc.recompute()

fillet = body.newObject("PartDesign::Fillet", "Fillet")
fillet.Base = (pocket2, edges_at(pocket2, [
    (22.181, 5.175, 62.692),
    (-22.181, 5.175, 62.692),
    (-28.646, 5.175, 60.014),
    (28.646, 5.175, 60.014),
    (-28.646, 5.175, -60.014),
    (-22.181, 5.175, -62.692),
    (22.181, 5.175, -62.692),
    (28.646, 5.175, -60.014),
]))
fillet.Radius = 5

# Sketch on XZ plane
sketch4 = body.newObject("Sketcher::SketchObject", "Sketch003")
sketch4.AttachmentSupport = (doc.getObject("XZ_Plane"), [""])
sketch4.MapMode = "FlatFace"
sketch4.AttachmentOffset = App.Placement(App.Vector(0, 0, -10.35), App.Rotation())
sketch4.addGeometry(Part.Circle(App.Vector(-25.448448, -61.437989, 0), App.Vector(0, 0, 1), 1.25), False)
sketch4.addGeometry(Part.Circle(App.Vector(25.448448, -61.437989, 0), App.Vector(0, 0, 1), 1.25), False)
sketch4.addGeometry(Part.Circle(App.Vector(61.437989, -25.448448, 0), App.Vector(0, 0, 1), 1.25), False)
sketch4.addGeometry(Part.Circle(App.Vector(61.437989, 25.448448, 0), App.Vector(0, 0, 1), 1.25), False)
sketch4.addGeometry(Part.Circle(App.Vector(25.448448, 61.437989, 0), App.Vector(0, 0, 1), 1.25), False)
sketch4.addGeometry(Part.Circle(App.Vector(-25.448448, 61.437989, 0), App.Vector(0, 0, 1), 1.25), False)
sketch4.addGeometry(Part.Circle(App.Vector(-61.437989, 25.448448, 0), App.Vector(0, 0, 1), 1.25), False)
sketch4.addGeometry(Part.Circle(App.Vector(-61.437989, -25.448448, 0), App.Vector(0, 0, 1), 1.25), False)
sketch4.addConstraint(Sketcher.Constraint("Equal", 0, 1))
sketch4.addConstraint(Sketcher.Constraint("Equal", 1, 2))
sketch4.addConstraint(Sketcher.Constraint("Equal", 2, 3))
sketch4.addConstraint(Sketcher.Constraint("Equal", 3, 4))
sketch4.addConstraint(Sketcher.Constraint("Equal", 4, 5))
sketch4.addConstraint(Sketcher.Constraint("Equal", 5, 6))
sketch4.addConstraint(Sketcher.Constraint("Equal", 6, 7))
sketch4.addConstraint(Sketcher.Constraint("Symmetric", 0, 3, 4, 3, -1, 1))
sketch4.addConstraint(Sketcher.Constraint("Symmetric", 1, 3, 5, 3, -1, 1))
sketch4.addConstraint(Sketcher.Constraint("Symmetric", 2, 3, 6, 3, -1, 1))
sketch4.addConstraint(Sketcher.Constraint("Symmetric", 3, 3, 7, 3, -1, 1))
sketch4.addConstraint(Sketcher.Constraint("Symmetric", 0, 3, 1, 3, -2))
sketch4.addConstraint(Sketcher.Constraint("Symmetric", 3, 3, 6, 3, -2))
sketch4.addConstraint(Sketcher.Constraint("Diameter", 0, 2.5))
sketch4.addConstraint(Sketcher.Constraint("DistanceX", 0, 3, -1, 1, 25.448448))
sketch4.addConstraint(Sketcher.Constraint("DistanceY", 0, 3, -1, 1, 61.437989))
sketch4.addConstraint(Sketcher.Constraint("DistanceX", -1, 1, 2, 3, 61.437989))
sketch4.addConstraint(Sketcher.Constraint("DistanceY", 2, 3, -1, 1, 25.448448))
doc.recompute()
hole = body.newObject("PartDesign::Hole", "Hole")
hole.Profile = sketch4
hole.ThreadType = "None"
hole.Diameter = 2.5
hole.DepthType = "ThroughAll"
hole.Reversed = True

# Sketch on XZ plane
sketch5 = body.newObject("Sketcher::SketchObject", "Sketch004")
sketch5.AttachmentSupport = (doc.getObject("XZ_Plane"), [""])
sketch5.MapMode = "FlatFace"
sketch5.addGeometry(Part.LineSegment(App.Vector(70.458687, -34.270524, 0), App.Vector(57.330104, -33.697317, 0)), False)
sketch5.addGeometry(Part.ArcOfCircle(Part.Circle(App.Vector(0, 0, 0), App.Vector(0, 0, 1), 66.5), math.radians(-30.446034), math.radians(-25.515916)), False)
sketch5.addGeometry(Part.ArcOfCircle(Part.Circle(App.Vector(61.437989, -25.448448, 0), App.Vector(0, 0, 1), 3.5), math.radians(-114.007958), math.radians(69.007958)), False)
sketch5.addGeometry(Part.ArcOfCircle(Part.Circle(App.Vector(0, 0, 0), App.Vector(0, 0, 1), 66.5), math.radians(-19.484084), math.radians(-14.553966)), False)
sketch5.addGeometry(Part.LineSegment(App.Vector(64.366107, -16.710904, 0), App.Vector(74.054735, -25.588896, 0)), False)
sketch5.addGeometry(Part.ArcOfCircle(Part.Circle(App.Vector(70.676784, -29.275283, 0), App.Vector(0, 0, 1), 5), math.radians(-92.5), math.radians(47.5)), False)
sketch5.addGeometry(Part.Circle(App.Vector(70.676784, -29.275283, 0), App.Vector(0, 0, 1), 2), False)
sketch5.addConstraint(Sketcher.Constraint("Coincident", 0, 2, 1, 1))
sketch5.addConstraint(Sketcher.Constraint("Coincident", 1, 2, 2, 1))
sketch5.addConstraint(Sketcher.Constraint("Coincident", 2, 2, 3, 1))
sketch5.addConstraint(Sketcher.Constraint("Coincident", 3, 2, 4, 1))
sketch5.addConstraint(Sketcher.Constraint("Tangent", 4, 2, 5, 2))
sketch5.addConstraint(Sketcher.Constraint("Tangent", 5, 1, 0, 1))
sketch5.addConstraint(Sketcher.Constraint("Coincident", 1, 3, -1, 1))
sketch5.addConstraint(Sketcher.Constraint("Coincident", 3, 3, -1, 1))
sketch5.addConstraint(Sketcher.Constraint("Coincident", 6, 3, 5, 3))
sketch5.addConstraint(Sketcher.Constraint("Equal", 1, 3))
sketch5.addConstraint(Sketcher.Constraint("Equal", 0, 4))
sketch5.addConstraint(Sketcher.Constraint("Diameter", 6, 4.0))
sketch5.addConstraint(Sketcher.Constraint("Radius", 5, 5.0))
sketch5.addConstraint(Sketcher.Constraint("Radius", 1, 66.5))
sketch5.addConstraint(Sketcher.Constraint("Radius", 2, 3.5))
sketch5.addConstraint(Sketcher.Constraint("Angle", 0, Q("177.5 deg")))
sketch5.addConstraint(Sketcher.Constraint("Angle", 4, Q("-42.5 deg")))
sketch5.addConstraint(Sketcher.Constraint("DistanceX", 2, 3, 5, 1, 9.020698))
sketch5.addConstraint(Sketcher.Constraint("Distance", 0, 13.141091))
sketch5.addConstraint(Sketcher.Constraint("DistanceY", 2, 3, -1, 1, 25.448448))
pad2 = body.newObject("PartDesign::Pad", "Pad001")
pad2.Profile = sketch5
pad2.Length = 10.35
pad2.Reversed = True

# Sketch on XZ plane
sketch6 = body.newObject("Sketcher::SketchObject", "Sketch005")
sketch6.AttachmentSupport = (doc.getObject("XZ_Plane"), [""])
sketch6.MapMode = "FlatFace"
sketch6.addGeometry(Part.LineSegment(App.Vector(57.330104, -33.697317, 0), App.Vector(70.458687, -34.270524, 0)), False)
sketch6.addGeometry(Part.ArcOfCircle(Part.Circle(App.Vector(70.676784, -29.275283, 0), App.Vector(0, 0, 1), 5), math.radians(-92.5), math.radians(47.5)), False)
sketch6.addGeometry(Part.LineSegment(App.Vector(74.054735, -25.588896, 0), App.Vector(64.366107, -16.710904, 0)), False)
sketch6.addGeometry(Part.ArcOfCircle(Part.Circle(App.Vector(0, 0, 0), App.Vector(0, 0, 1), 66.5), math.radians(-19.484084), math.radians(-14.553966)), False)
sketch6.addGeometry(Part.ArcOfCircle(Part.Circle(App.Vector(61.437989, -25.448448, 0), App.Vector(0, 0, 1), 3.5), math.radians(-114.007958), math.radians(69.007958)), False)
sketch6.addGeometry(Part.ArcOfCircle(Part.Circle(App.Vector(0, 0, 0), App.Vector(0, 0, 1), 66.5), math.radians(-30.446034), math.radians(-25.515916)), False)
sketch6.addConstraint(Sketcher.Constraint("Tangent", 0, 2, 1, 1))
sketch6.addConstraint(Sketcher.Constraint("Tangent", 1, 2, 2, 1))
sketch6.addConstraint(Sketcher.Constraint("Coincident", 2, 2, 3, 2))
sketch6.addConstraint(Sketcher.Constraint("Coincident", 3, 1, 4, 2))
sketch6.addConstraint(Sketcher.Constraint("Coincident", 4, 1, 5, 2))
sketch6.addConstraint(Sketcher.Constraint("Coincident", 5, 1, 0, 1))
sketch6.addConstraint(Sketcher.Constraint("Coincident", 3, 3, -1, 1))
sketch6.addConstraint(Sketcher.Constraint("Coincident", 5, 3, -1, 1))
sketch6.addConstraint(Sketcher.Constraint("Equal", 3, 5))
sketch6.addConstraint(Sketcher.Constraint("Equal", 0, 2))
sketch6.addConstraint(Sketcher.Constraint("Radius", 1, 5.0))
sketch6.addConstraint(Sketcher.Constraint("Radius", 3, 66.5))
sketch6.addConstraint(Sketcher.Constraint("Radius", 4, 3.5))
sketch6.addConstraint(Sketcher.Constraint("Angle", 0, Q("-2.5 deg")))
sketch6.addConstraint(Sketcher.Constraint("Angle", 2, Q("137.5 deg")))
sketch6.addConstraint(Sketcher.Constraint("DistanceX", 4, 3, 0, 2, 9.020698))
sketch6.addConstraint(Sketcher.Constraint("Distance", 0, 13.141091))
sketch6.addConstraint(Sketcher.Constraint("DistanceY", 4, 3, -1, 1, 25.448448))
pocket3 = body.newObject("PartDesign::Pocket", "Pocket002")
pocket3.Profile = sketch6
pocket3.Length = 4
doc.recompute()

mirrored = body.newObject("PartDesign::Mirrored", "Mirrored")
mirrored.Originals = [pad2]
mirrored.MirrorPlane = (doc.getObject("XY_Plane"), [""])
body.Tip = mirrored
doc.recompute()

mirrored2 = body.newObject("PartDesign::Mirrored", "Mirrored001")
mirrored2.Originals = [pocket3]
mirrored2.MirrorPlane = (doc.getObject("XY_Plane"), [""])
body.Tip = mirrored2
doc.recompute()

mirrored3 = body.newObject("PartDesign::Mirrored", "Mirrored002")
mirrored3.Originals = [pad2, pocket3]
mirrored3.MirrorPlane = (doc.getObject("YZ_Plane"), [""])
body.Tip = mirrored3

# Sketch on XZ plane
sketch7 = body.newObject("Sketcher::SketchObject", "Sketch006")
sketch7.AttachmentSupport = (doc.getObject("XZ_Plane"), [""])
sketch7.MapMode = "FlatFace"
sketch7.addGeometry(Part.LineSegment(App.Vector(-70.458687, 34.270524, 0), App.Vector(-57.330104, 33.697317, 0)), False)
sketch7.addGeometry(Part.ArcOfCircle(Part.Circle(App.Vector(0, 0, 0), App.Vector(0, 0, 1), 66.5), math.radians(149.553966), math.radians(154.484084)), False)
sketch7.addGeometry(Part.ArcOfCircle(Part.Circle(App.Vector(-61.437989, 25.448448, 0), App.Vector(0, 0, 1), 3.5), math.radians(65.992042), math.radians(249.007958)), False)
sketch7.addGeometry(Part.ArcOfCircle(Part.Circle(App.Vector(0, 0, 0), App.Vector(0, 0, 1), 66.5), math.radians(160.515916), math.radians(165.446034)), False)
sketch7.addGeometry(Part.LineSegment(App.Vector(-64.366107, 16.710904, 0), App.Vector(-74.054735, 25.588896, 0)), False)
sketch7.addGeometry(Part.ArcOfCircle(Part.Circle(App.Vector(-70.676784, 29.275283, 0), App.Vector(0, 0, 1), 5), math.radians(87.5), math.radians(227.5)), False)
sketch7.addGeometry(Part.Circle(App.Vector(-70.676784, 29.275283, 0), App.Vector(0, 0, 1), 2), False)
sketch7.addConstraint(Sketcher.Constraint("Coincident", 0, 2, 1, 1))
sketch7.addConstraint(Sketcher.Constraint("Coincident", 1, 2, 2, 1))
sketch7.addConstraint(Sketcher.Constraint("Coincident", 2, 2, 3, 1))
sketch7.addConstraint(Sketcher.Constraint("Coincident", 3, 2, 4, 1))
sketch7.addConstraint(Sketcher.Constraint("Tangent", 4, 2, 5, 2))
sketch7.addConstraint(Sketcher.Constraint("Tangent", 5, 1, 0, 1))
sketch7.addConstraint(Sketcher.Constraint("Coincident", 1, 3, -1, 1))
sketch7.addConstraint(Sketcher.Constraint("Coincident", 3, 3, -1, 1))
sketch7.addConstraint(Sketcher.Constraint("Coincident", 6, 3, 5, 3))
sketch7.addConstraint(Sketcher.Constraint("Equal", 1, 3))
sketch7.addConstraint(Sketcher.Constraint("Equal", 0, 4))
sketch7.addConstraint(Sketcher.Constraint("Diameter", 6, 4.0))
sketch7.addConstraint(Sketcher.Constraint("Radius", 5, 5.0))
sketch7.addConstraint(Sketcher.Constraint("Radius", 1, 66.5))
sketch7.addConstraint(Sketcher.Constraint("Radius", 2, 3.5))
sketch7.addConstraint(Sketcher.Constraint("Angle", 0, Q("-2.5 deg")))
sketch7.addConstraint(Sketcher.Constraint("Angle", 4, Q("137.5 deg")))
sketch7.addConstraint(Sketcher.Constraint("DistanceX", 5, 1, 2, 3, 9.020698))
sketch7.addConstraint(Sketcher.Constraint("Distance", 0, 13.141091))
sketch7.addConstraint(Sketcher.Constraint("DistanceY", -1, 1, 2, 3, 25.448448))
pad3 = body.newObject("PartDesign::Pad", "Pad002")
pad3.Profile = sketch7
pad3.Length = 10.35
pad3.Reversed = True

# Sketch on XZ plane
sketch8 = body.newObject("Sketcher::SketchObject", "Sketch007")
sketch8.AttachmentSupport = (doc.getObject("XZ_Plane"), [""])
sketch8.MapMode = "FlatFace"
sketch8.addGeometry(Part.LineSegment(App.Vector(-57.330104, 33.697317, 0), App.Vector(-70.458687, 34.270524, 0)), False)
sketch8.addGeometry(Part.ArcOfCircle(Part.Circle(App.Vector(-70.676784, 29.275283, 0), App.Vector(0, 0, 1), 5), math.radians(87.5), math.radians(227.5)), False)
sketch8.addGeometry(Part.LineSegment(App.Vector(-74.054735, 25.588896, 0), App.Vector(-64.366107, 16.710904, 0)), False)
sketch8.addGeometry(Part.ArcOfCircle(Part.Circle(App.Vector(0, 0, 0), App.Vector(0, 0, 1), 66.5), math.radians(160.515916), math.radians(165.446034)), False)
sketch8.addGeometry(Part.ArcOfCircle(Part.Circle(App.Vector(-61.437989, 25.448448, 0), App.Vector(0, 0, 1), 3.5), math.radians(65.992042), math.radians(249.007958)), False)
sketch8.addGeometry(Part.ArcOfCircle(Part.Circle(App.Vector(0, 0, 0), App.Vector(0, 0, 1), 66.5), math.radians(149.553966), math.radians(154.484084)), False)
sketch8.addConstraint(Sketcher.Constraint("Tangent", 0, 2, 1, 1))
sketch8.addConstraint(Sketcher.Constraint("Tangent", 1, 2, 2, 1))
sketch8.addConstraint(Sketcher.Constraint("Coincident", 2, 2, 3, 2))
sketch8.addConstraint(Sketcher.Constraint("Coincident", 3, 1, 4, 2))
sketch8.addConstraint(Sketcher.Constraint("Coincident", 4, 1, 5, 2))
sketch8.addConstraint(Sketcher.Constraint("Coincident", 5, 1, 0, 1))
sketch8.addConstraint(Sketcher.Constraint("Coincident", 3, 3, -1, 1))
sketch8.addConstraint(Sketcher.Constraint("Coincident", 5, 3, -1, 1))
sketch8.addConstraint(Sketcher.Constraint("Equal", 3, 5))
sketch8.addConstraint(Sketcher.Constraint("Equal", 0, 2))
sketch8.addConstraint(Sketcher.Constraint("Radius", 1, 5.0))
sketch8.addConstraint(Sketcher.Constraint("Radius", 3, 66.5))
sketch8.addConstraint(Sketcher.Constraint("Radius", 4, 3.5))
sketch8.addConstraint(Sketcher.Constraint("Angle", 0, Q("177.5 deg")))
sketch8.addConstraint(Sketcher.Constraint("Angle", 2, Q("-42.5 deg")))
sketch8.addConstraint(Sketcher.Constraint("DistanceX", 0, 2, 4, 3, 9.020698))
sketch8.addConstraint(Sketcher.Constraint("Distance", 0, 13.141091))
sketch8.addConstraint(Sketcher.Constraint("DistanceY", -1, 1, 4, 3, 25.448448))
pocket4 = body.newObject("PartDesign::Pocket", "Pocket003")
pocket4.Profile = sketch8
pocket4.Length = 4
doc.recompute()

fillet2 = body.newObject("PartDesign::Fillet", "Fillet001")
fillet2.Base = (pocket4, edges_at(pocket4, [
    (62.692, 2, -22.181),
    (60.014, 2, -28.646),
    (62.692, 2, 22.181),
    (60.014, 2, 28.646),
    (-62.692, 2, -22.181),
    (-60.014, 2, -28.646),
    (-62.692, 2, 22.181),
    (-60.014, 2, 28.646),
]))
fillet2.Radius = 5
doc.recompute()

fillet3 = body.newObject("PartDesign::Fillet", "Fillet002")
fillet3.Base = (fillet2, edges_at(fillet2, [
    (64.366, 7.175, -16.711),
    (57.33, 7.175, -33.697),
    (64.366, 7.175, 16.711),
    (57.33, 7.175, 33.697),
    (-64.366, 7.175, -16.711),
    (-57.33, 7.175, -33.697),
    (-64.366, 7.175, 16.711),
    (-57.33, 7.175, 33.697),
]))
fillet3.Radius = 10

doc.recompute()
